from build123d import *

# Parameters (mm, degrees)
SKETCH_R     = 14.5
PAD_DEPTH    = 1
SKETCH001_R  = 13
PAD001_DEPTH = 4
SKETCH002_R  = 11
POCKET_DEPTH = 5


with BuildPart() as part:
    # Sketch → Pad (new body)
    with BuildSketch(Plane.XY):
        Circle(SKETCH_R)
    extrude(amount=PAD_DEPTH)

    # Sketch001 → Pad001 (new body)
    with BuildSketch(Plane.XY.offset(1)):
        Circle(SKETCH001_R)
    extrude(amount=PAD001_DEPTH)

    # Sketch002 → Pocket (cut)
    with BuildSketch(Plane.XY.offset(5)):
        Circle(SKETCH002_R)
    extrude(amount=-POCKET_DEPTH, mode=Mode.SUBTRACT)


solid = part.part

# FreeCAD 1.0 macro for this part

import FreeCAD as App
import Part
import Sketcher

V = App.Vector

doc = App.newDocument("Part")
body = doc.addObject("PartDesign::Body", "Body")

# Sketch on XY plane
sketch1 = body.newObject("Sketcher::SketchObject", "Sketch")
sketch1.AttachmentSupport = (doc.getObject("XY_Plane"), [""])
sketch1.MapMode = "FlatFace"
sketch1.addGeometry(Part.Circle(V(0, 0, 0), V(0, 0, 1), 14), False)
sketch1.addConstraint([
    Sketcher.Constraint("Coincident", 0, 3, -1, 1),
    Sketcher.Constraint("Diameter", 0, 29.0),
])
pad1 = body.newObject("PartDesign::Pad", "Pad")
pad1.Profile = sketch1
pad1.Length = 1

# Sketch on XY plane
sketch2 = body.newObject("Sketcher::SketchObject", "Sketch001")
sketch2.AttachmentSupport = (doc.getObject("XY_Plane"), [""])
sketch2.MapMode = "FlatFace"
sketch2.AttachmentOffset = App.Placement(V(0, 0, 1), App.Rotation())
sketch2.addGeometry(Part.Circle(V(0, 0, 0), V(0, 0, 1), 13), False)
sketch2.addConstraint([
    Sketcher.Constraint("Coincident", 0, 3, -1, 1),
    Sketcher.Constraint("Diameter", 0, 26.0),
])
pad2 = body.newObject("PartDesign::Pad", "Pad001")
pad2.Profile = sketch2
pad2.Length = 4

# Sketch on XY plane
sketch3 = body.newObject("Sketcher::SketchObject", "Sketch002")
sketch3.AttachmentSupport = (doc.getObject("XY_Plane"), [""])
sketch3.MapMode = "FlatFace"
sketch3.AttachmentOffset = App.Placement(V(0, 0, 5), App.Rotation())
sketch3.addGeometry(Part.Circle(V(0, 0, 0), V(0, 0, 1), 11), False)
sketch3.addConstraint([
    Sketcher.Constraint("Coincident", 0, 3, -1, 1),
    Sketcher.Constraint("Diameter", 0, 22.0),
])
pocket1 = body.newObject("PartDesign::Pocket", "Pocket")
pocket1.Profile = sketch3
pocket1.Length = 5

doc.recompute()
